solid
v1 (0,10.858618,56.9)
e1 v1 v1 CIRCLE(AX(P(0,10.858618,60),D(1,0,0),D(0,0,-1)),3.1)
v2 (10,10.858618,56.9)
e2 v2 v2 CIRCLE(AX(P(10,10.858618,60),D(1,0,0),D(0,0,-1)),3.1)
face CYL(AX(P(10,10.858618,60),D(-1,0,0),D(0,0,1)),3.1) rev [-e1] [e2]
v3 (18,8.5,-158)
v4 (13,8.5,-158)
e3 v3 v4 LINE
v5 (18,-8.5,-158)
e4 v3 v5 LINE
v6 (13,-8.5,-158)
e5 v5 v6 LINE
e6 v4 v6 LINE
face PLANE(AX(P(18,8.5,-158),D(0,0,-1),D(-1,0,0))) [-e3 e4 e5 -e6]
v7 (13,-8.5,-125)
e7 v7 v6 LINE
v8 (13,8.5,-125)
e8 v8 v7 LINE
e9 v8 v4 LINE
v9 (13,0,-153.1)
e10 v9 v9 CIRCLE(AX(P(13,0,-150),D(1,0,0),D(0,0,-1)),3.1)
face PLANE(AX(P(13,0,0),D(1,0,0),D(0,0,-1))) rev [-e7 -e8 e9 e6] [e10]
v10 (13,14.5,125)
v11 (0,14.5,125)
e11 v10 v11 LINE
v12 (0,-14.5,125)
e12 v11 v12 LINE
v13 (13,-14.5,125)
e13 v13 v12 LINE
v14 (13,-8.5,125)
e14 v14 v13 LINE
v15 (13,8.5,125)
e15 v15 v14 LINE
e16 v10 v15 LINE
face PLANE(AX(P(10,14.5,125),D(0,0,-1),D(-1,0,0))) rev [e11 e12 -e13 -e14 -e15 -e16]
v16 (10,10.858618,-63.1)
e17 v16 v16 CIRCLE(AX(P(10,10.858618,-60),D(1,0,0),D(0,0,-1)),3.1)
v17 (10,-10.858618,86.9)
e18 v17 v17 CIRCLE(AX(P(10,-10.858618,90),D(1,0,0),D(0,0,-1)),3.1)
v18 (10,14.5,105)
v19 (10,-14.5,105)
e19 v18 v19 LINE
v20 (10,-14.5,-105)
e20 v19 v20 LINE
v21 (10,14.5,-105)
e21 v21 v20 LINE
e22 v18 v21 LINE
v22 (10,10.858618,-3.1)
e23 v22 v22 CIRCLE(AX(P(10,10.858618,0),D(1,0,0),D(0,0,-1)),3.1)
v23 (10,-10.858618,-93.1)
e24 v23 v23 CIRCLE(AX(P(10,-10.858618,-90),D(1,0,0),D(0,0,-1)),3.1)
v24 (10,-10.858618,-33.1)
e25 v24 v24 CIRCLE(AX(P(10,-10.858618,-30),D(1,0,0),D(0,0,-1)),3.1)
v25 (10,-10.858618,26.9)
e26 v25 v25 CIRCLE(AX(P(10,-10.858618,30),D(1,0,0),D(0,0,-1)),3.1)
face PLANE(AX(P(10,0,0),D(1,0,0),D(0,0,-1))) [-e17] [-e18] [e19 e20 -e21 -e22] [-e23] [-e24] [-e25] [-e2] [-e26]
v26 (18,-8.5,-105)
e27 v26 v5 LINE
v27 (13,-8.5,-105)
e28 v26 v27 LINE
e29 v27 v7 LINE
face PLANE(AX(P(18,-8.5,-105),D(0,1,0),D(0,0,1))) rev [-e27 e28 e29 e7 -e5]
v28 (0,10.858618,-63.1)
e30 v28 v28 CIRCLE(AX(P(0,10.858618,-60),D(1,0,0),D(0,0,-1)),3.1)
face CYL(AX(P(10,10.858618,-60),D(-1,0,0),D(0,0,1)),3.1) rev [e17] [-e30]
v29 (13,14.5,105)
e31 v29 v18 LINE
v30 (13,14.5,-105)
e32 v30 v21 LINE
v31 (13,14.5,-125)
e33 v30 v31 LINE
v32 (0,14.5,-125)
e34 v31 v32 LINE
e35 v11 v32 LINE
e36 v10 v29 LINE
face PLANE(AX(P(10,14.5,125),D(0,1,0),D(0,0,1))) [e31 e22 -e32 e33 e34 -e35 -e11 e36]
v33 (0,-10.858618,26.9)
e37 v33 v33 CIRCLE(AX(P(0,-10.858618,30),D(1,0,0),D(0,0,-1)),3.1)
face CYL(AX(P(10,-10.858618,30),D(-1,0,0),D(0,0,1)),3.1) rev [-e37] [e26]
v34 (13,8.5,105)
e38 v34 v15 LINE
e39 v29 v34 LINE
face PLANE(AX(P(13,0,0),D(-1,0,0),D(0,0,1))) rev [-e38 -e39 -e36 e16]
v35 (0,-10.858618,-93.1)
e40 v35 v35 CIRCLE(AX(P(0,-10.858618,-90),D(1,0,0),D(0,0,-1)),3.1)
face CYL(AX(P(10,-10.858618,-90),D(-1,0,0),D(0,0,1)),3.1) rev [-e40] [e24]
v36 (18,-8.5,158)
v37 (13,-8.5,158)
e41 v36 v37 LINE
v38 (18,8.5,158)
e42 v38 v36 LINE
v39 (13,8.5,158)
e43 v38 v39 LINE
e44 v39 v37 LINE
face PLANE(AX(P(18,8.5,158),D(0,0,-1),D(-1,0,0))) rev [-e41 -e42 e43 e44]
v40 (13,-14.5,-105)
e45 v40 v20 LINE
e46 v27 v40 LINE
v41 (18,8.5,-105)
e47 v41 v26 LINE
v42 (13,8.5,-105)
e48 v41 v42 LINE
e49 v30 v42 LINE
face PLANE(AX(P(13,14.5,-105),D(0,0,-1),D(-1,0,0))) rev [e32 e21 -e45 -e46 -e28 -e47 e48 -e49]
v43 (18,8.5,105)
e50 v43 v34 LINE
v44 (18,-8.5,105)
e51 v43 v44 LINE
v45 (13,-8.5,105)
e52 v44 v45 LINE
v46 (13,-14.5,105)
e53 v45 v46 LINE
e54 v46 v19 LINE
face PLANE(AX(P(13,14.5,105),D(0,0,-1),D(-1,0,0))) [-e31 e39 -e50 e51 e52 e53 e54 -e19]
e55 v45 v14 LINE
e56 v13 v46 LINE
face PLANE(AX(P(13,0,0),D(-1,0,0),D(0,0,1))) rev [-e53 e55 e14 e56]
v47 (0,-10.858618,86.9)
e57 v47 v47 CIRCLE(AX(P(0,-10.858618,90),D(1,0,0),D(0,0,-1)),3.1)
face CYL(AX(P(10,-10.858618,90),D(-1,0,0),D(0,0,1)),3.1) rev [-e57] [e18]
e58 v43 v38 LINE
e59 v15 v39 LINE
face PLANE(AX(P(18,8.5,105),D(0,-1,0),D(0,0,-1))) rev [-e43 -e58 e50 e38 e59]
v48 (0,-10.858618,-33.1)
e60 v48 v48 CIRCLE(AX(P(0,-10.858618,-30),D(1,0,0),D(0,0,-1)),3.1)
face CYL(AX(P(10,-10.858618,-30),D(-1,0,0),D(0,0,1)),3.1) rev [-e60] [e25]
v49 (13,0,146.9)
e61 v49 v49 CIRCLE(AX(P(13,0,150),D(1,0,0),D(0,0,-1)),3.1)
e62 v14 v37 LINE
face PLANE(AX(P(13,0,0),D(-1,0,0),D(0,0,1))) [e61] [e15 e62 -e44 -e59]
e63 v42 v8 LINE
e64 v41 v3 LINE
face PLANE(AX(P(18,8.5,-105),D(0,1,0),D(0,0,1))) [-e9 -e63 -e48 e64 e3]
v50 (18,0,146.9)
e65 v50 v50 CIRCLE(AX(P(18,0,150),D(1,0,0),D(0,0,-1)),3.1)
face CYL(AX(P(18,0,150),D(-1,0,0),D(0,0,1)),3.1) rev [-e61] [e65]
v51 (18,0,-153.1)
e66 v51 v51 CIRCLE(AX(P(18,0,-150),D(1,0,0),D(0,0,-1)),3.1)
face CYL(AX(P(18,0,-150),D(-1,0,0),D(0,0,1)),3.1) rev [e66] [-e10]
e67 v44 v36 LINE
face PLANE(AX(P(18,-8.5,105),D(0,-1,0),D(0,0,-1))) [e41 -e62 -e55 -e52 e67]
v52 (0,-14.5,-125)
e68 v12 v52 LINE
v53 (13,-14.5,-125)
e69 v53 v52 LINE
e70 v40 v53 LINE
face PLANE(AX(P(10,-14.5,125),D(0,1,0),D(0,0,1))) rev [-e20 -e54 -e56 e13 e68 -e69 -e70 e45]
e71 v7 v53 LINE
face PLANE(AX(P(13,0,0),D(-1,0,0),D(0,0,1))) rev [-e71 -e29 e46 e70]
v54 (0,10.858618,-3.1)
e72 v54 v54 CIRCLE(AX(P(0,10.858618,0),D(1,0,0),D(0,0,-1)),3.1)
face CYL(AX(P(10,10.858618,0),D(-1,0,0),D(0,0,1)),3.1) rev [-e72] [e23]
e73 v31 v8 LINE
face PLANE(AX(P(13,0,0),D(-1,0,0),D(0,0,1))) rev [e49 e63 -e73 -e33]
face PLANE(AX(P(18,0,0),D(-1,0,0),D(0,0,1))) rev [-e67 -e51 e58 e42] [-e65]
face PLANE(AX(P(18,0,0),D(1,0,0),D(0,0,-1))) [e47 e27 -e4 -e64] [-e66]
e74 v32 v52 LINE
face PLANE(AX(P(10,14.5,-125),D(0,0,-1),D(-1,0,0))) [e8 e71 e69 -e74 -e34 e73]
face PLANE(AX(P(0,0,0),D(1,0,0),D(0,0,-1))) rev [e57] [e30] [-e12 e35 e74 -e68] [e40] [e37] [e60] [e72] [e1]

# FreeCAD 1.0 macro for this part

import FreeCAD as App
import Part
import Sketcher
from FreeCAD import Vector

doc = App.newDocument("Part")
body = doc.addObject("PartDesign::Body", "Body")

sketch1 = body.newObject("Sketcher::SketchObject", "Sketch")
sketch1.AttachmentSupport = (doc.getObject("YZ_Plane"), [""])
sketch1.MapMode = "FlatFace"
sketch1.addGeometry(Part.LineSegment(Vector(14.5, 125, 0), Vector(-14.5, 125, 0)), False)
sketch1.addGeometry(Part.LineSegment(Vector(-14.5, 125, 0), Vector(-14.5, -125, 0)), False)
sketch1.addGeometry(Part.LineSegment(Vector(-14.5, -125, 0), Vector(14.5, -125, 0)), False)
sketch1.addGeometry(Part.LineSegment(Vector(14.5, -125, 0), Vector(14.5, 125, 0)), False)
sketch1.addConstraint(Sketcher.Constraint("Coincident", 0, 2, 1, 1))
sketch1.addConstraint(Sketcher.Constraint("Coincident", 1, 2, 2, 1))
sketch1.addConstraint(Sketcher.Constraint("Coincident", 2, 2, 3, 1))
sketch1.addConstraint(Sketcher.Constraint("Coincident", 3, 2, 0, 1))
sketch1.addConstraint(Sketcher.Constraint("Horizontal", 0))
sketch1.addConstraint(Sketcher.Constraint("Vertical", 1))
sketch1.addConstraint(Sketcher.Constraint("Horizontal", 2))
sketch1.addConstraint(Sketcher.Constraint("Vertical", 3))
sketch1.addConstraint(Sketcher.Constraint("Symmetric", 0, 2, 2, 2, -1, 1))
sketch1.addConstraint(Sketcher.Constraint("DistanceX", 0, 2, 0, 1, 29.0))
sketch1.addConstraint(Sketcher.Constraint("DistanceY", 1, 2, 1, 1, 250.0))
pad1 = body.newObject("PartDesign::Pad", "Pad")
pad1.Profile = sketch1
pad1.Length = 10

sketch2 = body.newObject("Sketcher::SketchObject", "Sketch001")
sketch2.AttachmentSupport = (doc.getObject("YZ_Plane"), [""])
sketch2.MapMode = "FlatFace"
sketch2.addGeometry(Part.Circle(Vector(-10.858618, 90, 0), Vector(0, 0, 1), 3.1), False)
sketch2.addGeometry(Part.Circle(Vector(-10.858618, 30, 0), Vector(0, 0, 1), 3.1), False)
sketch2.addGeometry(Part.Circle(Vector(-10.858618, -30, 0), Vector(0, 0, 1), 3.1), False)
sketch2.addGeometry(Part.Circle(Vector(10.858618, 60, 0), Vector(0, 0, 1), 3.1), False)
sketch2.addGeometry(Part.Circle(Vector(-10.858618, -90, 0), Vector(0, 0, 1), 3.1), False)
sketch2.addGeometry(Part.Circle(Vector(10.858618, 0, 0), Vector(0, 0, 1), 3.1), False)
sketch2.addGeometry(Part.Circle(Vector(10.858618, -60, 0), Vector(0, 0, 1), 3.1), False)
sketch2.addConstraint(Sketcher.Constraint("Equal", 0, 1))
sketch2.addConstraint(Sketcher.Constraint("Equal", 1, 2))
sketch2.addConstraint(Sketcher.Constraint("Equal", 2, 3))
sketch2.addConstraint(Sketcher.Constraint("Equal", 3, 4))
sketch2.addConstraint(Sketcher.Constraint("Equal", 4, 5))
sketch2.addConstraint(Sketcher.Constraint("Equal", 5, 6))
sketch2.addConstraint(Sketcher.Constraint("Symmetric", 1, 3, 2, 3, -1))
sketch2.addConstraint(Sketcher.Constraint("Symmetric", 0, 3, 4, 3, -1))
sketch2.addConstraint(Sketcher.Constraint("Symmetric", 3, 3, 6, 3, -1))
sketch2.addConstraint(Sketcher.Constraint("PointOnObject", 5, 3, -1))
sketch2.addConstraint(Sketcher.Constraint("Vertical", 0, 3, 1, 3))
sketch2.addConstraint(Sketcher.Constraint("Vertical", 3, 3, 5, 3))
sketch2.addConstraint(Sketcher.Constraint("Diameter", 0, 6.2))
sketch2.addConstraint(Sketcher.Constraint("DistanceY", -1, 1, 0, 3, 90.0))
sketch2.addConstraint(Sketcher.Constraint("DistanceY", -1, 1, 1, 3, 30.0))
sketch2.addConstraint(Sketcher.Constraint("DistanceY", -1, 1, 3, 3, 60.0))
sketch2.addConstraint(Sketcher.Constraint("DistanceX", 0, 3, -1, 1, 10.858618))
sketch2.addConstraint(Sketcher.Constraint("DistanceX", -1, 1, 3, 3, 10.858618))
pocket1 = body.newObject("PartDesign::Pocket", "Pocket")
pocket1.Profile = sketch2
pocket1.Type = "ThroughAll"
pocket1.Reversed = True

sketch3 = body.newObject("Sketcher::SketchObject", "Sketch002")
sketch3.AttachmentSupport = (doc.getObject("YZ_Plane"), [""])
sketch3.MapMode = "FlatFace"
sketch3.AttachmentOffset = App.Placement(Vector(0, 0, 10), App.Rotation())
sketch3.addGeometry(Part.LineSegment(Vector(14.5, -105, 0), Vector(-14.5, -105, 0)), False)
sketch3.addGeometry(Part.LineSegment(Vector(-14.5, -105, 0), Vector(-14.5, -125, 0)), False)
sketch3.addGeometry(Part.LineSegment(Vector(-14.5, -125, 0), Vector(14.5, -125, 0)), False)
sketch3.addGeometry(Part.LineSegment(Vector(14.5, -125, 0), Vector(14.5, -105, 0)), False)
sketch3.addGeometry(Part.LineSegment(Vector(14.5, 125, 0), Vector(-14.5, 125, 0)), False)
sketch3.addGeometry(Part.LineSegment(Vector(-14.5, 125, 0), Vector(-14.5, 105, 0)), False)
sketch3.addGeometry(Part.LineSegment(Vector(-14.5, 105, 0), Vector(14.5, 105, 0)), False)
sketch3.addGeometry(Part.LineSegment(Vector(14.5, 105, 0), Vector(14.5, 125, 0)), False)
sketch3.addConstraint(Sketcher.Constraint("Coincident", 0, 2, 1, 1))
sketch3.addConstraint(Sketcher.Constraint("Coincident", 1, 2, 2, 1))
sketch3.addConstraint(Sketcher.Constraint("Coincident", 2, 2, 3, 1))
sketch3.addConstraint(Sketcher.Constraint("Coincident", 3, 2, 0, 1))
sketch3.addConstraint(Sketcher.Constraint("Coincident", 4, 2, 5, 1))
sketch3.addConstraint(Sketcher.Constraint("Coincident", 5, 2, 6, 1))
sketch3.addConstraint(Sketcher.Constraint("Coincident", 6, 2, 7, 1))
sketch3.addConstraint(Sketcher.Constraint("Coincident", 7, 2, 4, 1))
sketch3.addConstraint(Sketcher.Constraint("Horizontal", 0))
sketch3.addConstraint(Sketcher.Constraint("Vertical", 1))
sketch3.addConstraint(Sketcher.Constraint("Horizontal", 2))
sketch3.addConstraint(Sketcher.Constraint("Vertical", 3))
sketch3.addConstraint(Sketcher.Constraint("Horizontal", 4))
sketch3.addConstraint(Sketcher.Constraint("Vertical", 5))
sketch3.addConstraint(Sketcher.Constraint("Horizontal", 6))
sketch3.addConstraint(Sketcher.Constraint("Vertical", 7))
sketch3.addConstraint(Sketcher.Constraint("Symmetric", 2, 2, 4, 2, -1, 1))
sketch3.addConstraint(Sketcher.Constraint("Symmetric", 0, 2, 6, 2, -1, 1))
sketch3.addConstraint(Sketcher.Constraint("Vertical", 1, 2, 4, 2))
sketch3.addConstraint(Sketcher.Constraint("DistanceX", 0, 2, 0, 1, 29.0))
sketch3.addConstraint(Sketcher.Constraint("DistanceY", 1, 2, 1, 1, 20.0))
sketch3.addConstraint(Sketcher.Constraint("DistanceY", 0, 2, -1, 1, 105.0))
pad2 = body.newObject("PartDesign::Pad", "Pad001")
pad2.Profile = sketch3
pad2.Length = 3

sketch4 = body.newObject("Sketcher::SketchObject", "Sketch003")
sketch4.AttachmentSupport = (doc.getObject("YZ_Plane"), [""])
sketch4.MapMode = "FlatFace"
sketch4.AttachmentOffset = App.Placement(Vector(0, 0, 13), App.Rotation())
sketch4.addGeometry(Part.LineSegment(Vector(8.5, -105, 0), Vector(-8.5, -105, 0)), False)
sketch4.addGeometry(Part.LineSegment(Vector(-8.5, -105, 0), Vector(-8.5, -158, 0)), False)
sketch4.addGeometry(Part.LineSegment(Vector(-8.5, -158, 0), Vector(8.5, -158, 0)), False)
sketch4.addGeometry(Part.LineSegment(Vector(8.5, -158, 0), Vector(8.5, -105, 0)), False)
sketch4.addGeometry(Part.Circle(Vector(0, -150, 0), Vector(0, 0, 1), 3.1), False)
sketch4.addGeometry(Part.LineSegment(Vector(8.5, 158, 0), Vector(-8.5, 158, 0)), False)
sketch4.addGeometry(Part.LineSegment(Vector(-8.5, 158, 0), Vector(-8.5, 105, 0)), False)
sketch4.addGeometry(Part.LineSegment(Vector(-8.5, 105, 0), Vector(8.5, 105, 0)), False)
sketch4.addGeometry(Part.LineSegment(Vector(8.5, 105, 0), Vector(8.5, 158, 0)), False)
sketch4.addGeometry(Part.Circle(Vector(0, 150, 0), Vector(0, 0, 1), 3.1), False)
sketch4.addConstraint(Sketcher.Constraint("Coincident", 0, 2, 1, 1))
sketch4.addConstraint(Sketcher.Constraint("Coincident", 1, 2, 2, 1))
sketch4.addConstraint(Sketcher.Constraint("Coincident", 2, 2, 3, 1))
sketch4.addConstraint(Sketcher.Constraint("Coincident", 3, 2, 0, 1))
sketch4.addConstraint(Sketcher.Constraint("Coincident", 5, 2, 6, 1))
sketch4.addConstraint(Sketcher.Constraint("Coincident", 6, 2, 7, 1))
sketch4.addConstraint(Sketcher.Constraint("Coincident", 7, 2, 8, 1))
sketch4.addConstraint(Sketcher.Constraint("Coincident", 8, 2, 5, 1))
sketch4.addConstraint(Sketcher.Constraint("Horizontal", 0))
sketch4.addConstraint(Sketcher.Constraint("Vertical", 1))
sketch4.addConstraint(Sketcher.Constraint("Horizontal", 2))
sketch4.addConstraint(Sketcher.Constraint("Vertical", 3))
sketch4.addConstraint(Sketcher.Constraint("Horizontal", 5))
sketch4.addConstraint(Sketcher.Constraint("Vertical", 6))
sketch4.addConstraint(Sketcher.Constraint("Horizontal", 7))
sketch4.addConstraint(Sketcher.Constraint("Vertical", 8))
sketch4.addConstraint(Sketcher.Constraint("Equal", 4, 9))
sketch4.addConstraint(Sketcher.Constraint("Symmetric", 4, 3, 9, 3, -1, 1))
sketch4.addConstraint(Sketcher.Constraint("Symmetric", 2, 2, 5, 2, -1, 1))
sketch4.addConstraint(Sketcher.Constraint("Symmetric", 0, 2, 7, 2, -1, 1))
sketch4.addConstraint(Sketcher.Constraint("PointOnObject", 4, 3, -2))
sketch4.addConstraint(Sketcher.Constraint("Vertical", 1, 2, 5, 2))
sketch4.addConstraint(Sketcher.Constraint("Diameter", 4, 6.2))
sketch4.addConstraint(Sketcher.Constraint("DistanceX", 0, 2, 0, 1, 17.0))
sketch4.addConstraint(Sketcher.Constraint("DistanceY", 1, 2, 1, 1, 53.0))
sketch4.addConstraint(Sketcher.Constraint("DistanceY", 4, 3, -1, 1, 150.0))
sketch4.addConstraint(Sketcher.Constraint("DistanceY", 0, 2, -1, 1, 105.0))
pad3 = body.newObject("PartDesign::Pad", "Pad002")
pad3.Profile = sketch4
pad3.Length = 5

doc.recompute()
